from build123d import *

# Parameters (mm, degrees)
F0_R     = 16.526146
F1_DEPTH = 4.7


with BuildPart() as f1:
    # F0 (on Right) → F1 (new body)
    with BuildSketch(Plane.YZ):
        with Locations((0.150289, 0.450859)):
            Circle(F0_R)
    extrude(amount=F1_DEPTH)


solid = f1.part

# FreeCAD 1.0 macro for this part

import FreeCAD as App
import Part
import Sketcher
Q = App.Units.Quantity

doc = App.newDocument("Part")
body = doc.addObject("PartDesign::Body", "Body")

sketch1 = body.newObject("Sketcher::SketchObject", "Sketch")
sketch1.AttachmentSupport = (doc.getObject("YZ_Plane"), [""])
sketch1.MapMode = "FlatFace"
sketch1.addGeometry(Part.Circle(App.Vector(0, 0, 0), App.Vector(0, 0, 1), 17), False)
sketch1.addConstraint([
    Sketcher.Constraint("Diameter", 0, Q("33.052292 mm")),
    Sketcher.Constraint("DistanceX", -1, 1, 0, 3, Q("0.150289 mm")),
    Sketcher.Constraint("DistanceY", -1, 1, 0, 3, Q("0.450859 mm")),
])
pad1 = body.newObject("PartDesign::Pad", "Pad")
pad1.Profile = sketch1
pad1.Length = 4.7

doc.recompute()
